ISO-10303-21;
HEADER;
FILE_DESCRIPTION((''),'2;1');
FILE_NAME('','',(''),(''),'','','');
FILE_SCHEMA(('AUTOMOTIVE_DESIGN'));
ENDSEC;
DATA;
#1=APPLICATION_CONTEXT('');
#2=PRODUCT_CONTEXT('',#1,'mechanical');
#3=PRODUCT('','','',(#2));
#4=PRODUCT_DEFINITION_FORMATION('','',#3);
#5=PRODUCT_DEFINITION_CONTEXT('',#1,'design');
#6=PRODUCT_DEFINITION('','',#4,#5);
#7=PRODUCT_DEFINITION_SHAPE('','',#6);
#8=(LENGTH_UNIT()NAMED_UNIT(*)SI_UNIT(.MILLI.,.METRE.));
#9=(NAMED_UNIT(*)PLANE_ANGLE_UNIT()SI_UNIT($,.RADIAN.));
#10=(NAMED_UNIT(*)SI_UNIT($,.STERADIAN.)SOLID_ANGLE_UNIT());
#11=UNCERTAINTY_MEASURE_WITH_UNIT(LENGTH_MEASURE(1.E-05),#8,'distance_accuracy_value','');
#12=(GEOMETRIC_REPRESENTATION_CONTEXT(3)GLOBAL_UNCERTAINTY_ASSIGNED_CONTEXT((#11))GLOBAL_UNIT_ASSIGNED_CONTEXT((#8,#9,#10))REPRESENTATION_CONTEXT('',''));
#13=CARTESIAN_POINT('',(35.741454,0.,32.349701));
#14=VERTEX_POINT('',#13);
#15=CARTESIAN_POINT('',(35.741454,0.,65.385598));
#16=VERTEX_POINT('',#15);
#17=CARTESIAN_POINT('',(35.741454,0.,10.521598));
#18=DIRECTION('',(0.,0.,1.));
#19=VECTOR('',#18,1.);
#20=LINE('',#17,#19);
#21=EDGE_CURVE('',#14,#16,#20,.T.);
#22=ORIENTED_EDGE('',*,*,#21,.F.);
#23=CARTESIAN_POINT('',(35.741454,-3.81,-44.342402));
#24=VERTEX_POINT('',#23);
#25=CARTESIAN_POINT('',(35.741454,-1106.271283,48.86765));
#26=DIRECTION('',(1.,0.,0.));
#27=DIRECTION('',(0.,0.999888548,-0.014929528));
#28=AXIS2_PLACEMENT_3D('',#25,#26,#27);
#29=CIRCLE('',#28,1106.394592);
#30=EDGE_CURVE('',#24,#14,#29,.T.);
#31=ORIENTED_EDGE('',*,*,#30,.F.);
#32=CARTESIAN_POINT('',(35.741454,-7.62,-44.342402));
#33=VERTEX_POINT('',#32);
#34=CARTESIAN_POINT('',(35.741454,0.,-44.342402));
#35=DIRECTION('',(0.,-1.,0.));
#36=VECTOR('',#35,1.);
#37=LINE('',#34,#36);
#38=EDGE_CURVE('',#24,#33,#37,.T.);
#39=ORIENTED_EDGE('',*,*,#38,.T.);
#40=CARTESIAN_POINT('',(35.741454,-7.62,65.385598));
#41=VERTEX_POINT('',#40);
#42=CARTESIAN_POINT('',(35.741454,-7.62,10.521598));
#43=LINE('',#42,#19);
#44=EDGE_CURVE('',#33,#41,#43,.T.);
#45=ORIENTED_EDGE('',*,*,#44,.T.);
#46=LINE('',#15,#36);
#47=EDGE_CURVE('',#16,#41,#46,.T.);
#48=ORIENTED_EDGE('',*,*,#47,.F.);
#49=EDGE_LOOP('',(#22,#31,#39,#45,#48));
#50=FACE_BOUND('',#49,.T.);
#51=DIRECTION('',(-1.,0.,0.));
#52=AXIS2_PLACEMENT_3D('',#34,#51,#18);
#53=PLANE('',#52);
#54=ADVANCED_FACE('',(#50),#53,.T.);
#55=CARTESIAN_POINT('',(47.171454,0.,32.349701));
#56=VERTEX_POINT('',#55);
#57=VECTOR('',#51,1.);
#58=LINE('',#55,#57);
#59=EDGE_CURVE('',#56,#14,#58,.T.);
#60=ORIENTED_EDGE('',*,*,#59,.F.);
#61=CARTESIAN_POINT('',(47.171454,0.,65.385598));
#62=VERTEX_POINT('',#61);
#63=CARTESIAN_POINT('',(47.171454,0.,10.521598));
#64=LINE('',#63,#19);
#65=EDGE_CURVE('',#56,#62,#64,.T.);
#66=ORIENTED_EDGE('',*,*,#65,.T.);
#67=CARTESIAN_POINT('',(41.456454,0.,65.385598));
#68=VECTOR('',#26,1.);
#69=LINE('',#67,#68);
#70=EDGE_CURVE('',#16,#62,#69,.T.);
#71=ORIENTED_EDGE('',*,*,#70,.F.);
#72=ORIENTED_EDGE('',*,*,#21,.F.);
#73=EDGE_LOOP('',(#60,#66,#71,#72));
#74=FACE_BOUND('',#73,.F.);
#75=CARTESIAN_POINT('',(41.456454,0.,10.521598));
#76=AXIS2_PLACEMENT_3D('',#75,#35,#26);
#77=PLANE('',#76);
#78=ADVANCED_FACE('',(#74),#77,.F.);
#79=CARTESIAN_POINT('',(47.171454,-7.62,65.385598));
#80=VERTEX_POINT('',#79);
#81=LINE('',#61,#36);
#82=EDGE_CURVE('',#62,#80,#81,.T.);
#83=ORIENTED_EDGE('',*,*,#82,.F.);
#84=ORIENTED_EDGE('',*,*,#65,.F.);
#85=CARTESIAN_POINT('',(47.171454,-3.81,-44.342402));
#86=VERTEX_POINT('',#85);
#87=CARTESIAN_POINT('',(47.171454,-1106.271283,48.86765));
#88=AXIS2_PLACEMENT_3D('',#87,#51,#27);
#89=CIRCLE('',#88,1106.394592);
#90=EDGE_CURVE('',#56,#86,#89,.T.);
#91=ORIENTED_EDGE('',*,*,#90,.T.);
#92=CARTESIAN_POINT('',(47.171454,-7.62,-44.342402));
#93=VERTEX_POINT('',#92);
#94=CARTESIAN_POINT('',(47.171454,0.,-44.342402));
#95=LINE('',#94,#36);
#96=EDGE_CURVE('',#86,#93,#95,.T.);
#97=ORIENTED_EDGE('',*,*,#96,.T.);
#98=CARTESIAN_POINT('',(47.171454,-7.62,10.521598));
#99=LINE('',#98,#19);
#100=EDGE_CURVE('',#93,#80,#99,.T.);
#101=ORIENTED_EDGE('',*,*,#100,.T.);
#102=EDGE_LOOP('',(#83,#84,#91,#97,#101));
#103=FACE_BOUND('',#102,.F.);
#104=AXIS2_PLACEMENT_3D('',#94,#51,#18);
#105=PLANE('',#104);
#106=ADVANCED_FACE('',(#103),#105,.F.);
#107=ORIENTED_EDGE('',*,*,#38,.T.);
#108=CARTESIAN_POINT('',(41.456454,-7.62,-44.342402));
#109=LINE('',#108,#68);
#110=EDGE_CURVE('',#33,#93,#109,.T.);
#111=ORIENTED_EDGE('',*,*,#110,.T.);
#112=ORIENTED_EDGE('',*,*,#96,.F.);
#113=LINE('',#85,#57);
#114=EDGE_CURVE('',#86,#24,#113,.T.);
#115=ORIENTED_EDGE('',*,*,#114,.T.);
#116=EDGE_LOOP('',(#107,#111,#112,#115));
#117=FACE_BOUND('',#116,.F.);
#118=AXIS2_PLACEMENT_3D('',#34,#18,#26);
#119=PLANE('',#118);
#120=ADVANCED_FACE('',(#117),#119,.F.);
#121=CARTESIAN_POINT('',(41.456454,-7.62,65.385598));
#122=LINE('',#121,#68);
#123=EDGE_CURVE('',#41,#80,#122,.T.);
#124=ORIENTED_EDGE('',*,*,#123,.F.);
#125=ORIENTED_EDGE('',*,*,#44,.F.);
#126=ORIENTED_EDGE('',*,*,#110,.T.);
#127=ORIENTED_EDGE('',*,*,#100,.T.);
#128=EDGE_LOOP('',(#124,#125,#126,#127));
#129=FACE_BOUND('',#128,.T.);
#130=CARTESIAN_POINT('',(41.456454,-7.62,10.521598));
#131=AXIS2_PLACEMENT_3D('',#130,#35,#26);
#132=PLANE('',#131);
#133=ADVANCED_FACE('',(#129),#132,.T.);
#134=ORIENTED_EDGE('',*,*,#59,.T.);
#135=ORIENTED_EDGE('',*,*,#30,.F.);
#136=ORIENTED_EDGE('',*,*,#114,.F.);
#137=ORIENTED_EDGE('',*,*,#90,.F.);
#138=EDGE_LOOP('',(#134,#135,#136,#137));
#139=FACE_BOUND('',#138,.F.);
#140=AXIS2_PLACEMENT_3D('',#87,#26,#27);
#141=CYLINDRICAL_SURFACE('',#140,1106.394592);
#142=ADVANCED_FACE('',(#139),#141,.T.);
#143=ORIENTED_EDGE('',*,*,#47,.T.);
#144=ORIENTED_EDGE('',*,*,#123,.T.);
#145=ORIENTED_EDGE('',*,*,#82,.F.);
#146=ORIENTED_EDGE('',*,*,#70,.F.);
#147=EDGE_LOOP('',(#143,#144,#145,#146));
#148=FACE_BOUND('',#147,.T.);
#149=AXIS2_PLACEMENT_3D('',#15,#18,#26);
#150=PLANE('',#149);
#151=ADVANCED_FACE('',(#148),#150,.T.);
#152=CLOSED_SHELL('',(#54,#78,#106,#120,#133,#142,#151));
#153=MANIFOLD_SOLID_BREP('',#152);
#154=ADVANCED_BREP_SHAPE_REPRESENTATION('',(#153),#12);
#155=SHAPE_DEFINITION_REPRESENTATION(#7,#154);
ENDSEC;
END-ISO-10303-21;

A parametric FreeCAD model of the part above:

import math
import FreeCAD as App
import Part
import Sketcher

V = App.Vector
Q = App.Units.Quantity

doc = App.newDocument("Part")
params = doc.addObject("Spreadsheet::Sheet", "Params")
for row, (alias, value) in enumerate([
    ("sketch1_width", "0.45 in"),
    ("sketch1_height", "4.32 in"),
    ("pad1_length", "0.3 in"),
    ("sketch2_width", "0.15 in"),
    ("pocket1_length", "1 in"),
], start=1):
    params.set(f"A{row}", alias)
    params.set(f"B{row}", "=" + value)
    params.setAlias(f"B{row}", alias)

body = doc.addObject("PartDesign::Body", "Body")

# Sketch on XZ plane
sketch1 = body.newObject("Sketcher::SketchObject", "Sketch")
sketch1.AttachmentSupport = (doc.getObject("XZ_Plane"), [""])
sketch1.MapMode = "FlatFace"
sketch1.addGeometry(Part.LineSegment(V(36, 65, 0), V(36, -44, 0)), False)
sketch1.addGeometry(Part.LineSegment(V(36, -44, 0), V(47, -44, 0)), False)
sketch1.addGeometry(Part.LineSegment(V(47, -44, 0), V(47, 65, 0)), False)
sketch1.addGeometry(Part.LineSegment(V(47, 65, 0), V(36, 65, 0)), False)
sketch1.addConstraint(Sketcher.Constraint("Coincident", 0, 2, 1, 1))
sketch1.addConstraint(Sketcher.Constraint("Coincident", 1, 2, 2, 1))
sketch1.addConstraint(Sketcher.Constraint("Coincident", 2, 2, 3, 1))
sketch1.addConstraint(Sketcher.Constraint("Coincident", 3, 2, 0, 1))
sketch1.addConstraint(Sketcher.Constraint("Vertical", 0))
sketch1.addConstraint(Sketcher.Constraint("Horizontal", 1))
sketch1.addConstraint(Sketcher.Constraint("Vertical", 2))
sketch1.addConstraint(Sketcher.Constraint("Horizontal", 3))
sketch1.addConstraint(Sketcher.Constraint("DistanceX", 1, 1, 1, 2, Q("0.45 in")))
sketch1.addConstraint(Sketcher.Constraint("DistanceY", 0, 2, 0, 1, Q("4.32 in")))
sketch1.addConstraint(Sketcher.Constraint("DistanceY", 0, 2, -1, 1, 44.342402))
sketch1.addConstraint(Sketcher.Constraint("DistanceX", -1, 1, 0, 2, 35.741454))
sketch1.setExpression("Constraints[8]", "Params.sketch1_width")
sketch1.setExpression("Constraints[9]", "Params.sketch1_height")
pad1 = body.newObject("PartDesign::Pad", "Pad")
pad1.Profile = sketch1
pad1.setExpression("Length", "Params.pad1_length")

# Sketch on YZ plane
sketch2 = body.newObject("Sketcher::SketchObject", "Sketch001")
sketch2.AttachmentSupport = (doc.getObject("YZ_Plane"), [""])
sketch2.MapMode = "FlatFace"
sketch2.AttachmentOffset = App.Placement(V(0, 0, 47.171454), App.Rotation())
sketch2.addGeometry(Part.ArcOfCircle(Part.Circle(V(-1106.3, 48.9, 0), V(0, 0, 1), 1106.4), math.radians(-4.83), math.radians(-0.86)), False)
sketch2.addGeometry(Part.LineSegment(V(-3.8, -44.3, 0), V(0, -44.3, 0)), False)
sketch2.addGeometry(Part.LineSegment(V(0, -44.3, 0), V(0, 32.3, 0)), False)
sketch2.addConstraint(Sketcher.Constraint("Coincident", 0, 1, 1, 1))
sketch2.addConstraint(Sketcher.Constraint("Coincident", 1, 2, 2, 1))
sketch2.addConstraint(Sketcher.Constraint("Coincident", 2, 2, 0, 2))
sketch2.addConstraint(Sketcher.Constraint("Horizontal", 1))
sketch2.addConstraint(Sketcher.Constraint("Vertical", 2))
sketch2.addConstraint(Sketcher.Constraint("PointOnObject", 1, 2, -2))
sketch2.addConstraint(Sketcher.Constraint("DistanceX", 1, 1, 1, 2, Q("0.15 in")))
sketch2.addConstraint(Sketcher.Constraint("Radius", 0, 1106.394592))
sketch2.addConstraint(Sketcher.Constraint("DistanceY", 1, 2, -1, 1, 44.342402))
sketch2.addConstraint(Sketcher.Constraint("DistanceY", -1, 1, 2, 2, 32.349701))
sketch2.setExpression("Constraints[6]", "Params.sketch2_width")
pocket1 = body.newObject("PartDesign::Pocket", "Pocket")
pocket1.Profile = sketch2
pocket1.setExpression("Length", "Params.pocket1_length")

doc.recompute()
